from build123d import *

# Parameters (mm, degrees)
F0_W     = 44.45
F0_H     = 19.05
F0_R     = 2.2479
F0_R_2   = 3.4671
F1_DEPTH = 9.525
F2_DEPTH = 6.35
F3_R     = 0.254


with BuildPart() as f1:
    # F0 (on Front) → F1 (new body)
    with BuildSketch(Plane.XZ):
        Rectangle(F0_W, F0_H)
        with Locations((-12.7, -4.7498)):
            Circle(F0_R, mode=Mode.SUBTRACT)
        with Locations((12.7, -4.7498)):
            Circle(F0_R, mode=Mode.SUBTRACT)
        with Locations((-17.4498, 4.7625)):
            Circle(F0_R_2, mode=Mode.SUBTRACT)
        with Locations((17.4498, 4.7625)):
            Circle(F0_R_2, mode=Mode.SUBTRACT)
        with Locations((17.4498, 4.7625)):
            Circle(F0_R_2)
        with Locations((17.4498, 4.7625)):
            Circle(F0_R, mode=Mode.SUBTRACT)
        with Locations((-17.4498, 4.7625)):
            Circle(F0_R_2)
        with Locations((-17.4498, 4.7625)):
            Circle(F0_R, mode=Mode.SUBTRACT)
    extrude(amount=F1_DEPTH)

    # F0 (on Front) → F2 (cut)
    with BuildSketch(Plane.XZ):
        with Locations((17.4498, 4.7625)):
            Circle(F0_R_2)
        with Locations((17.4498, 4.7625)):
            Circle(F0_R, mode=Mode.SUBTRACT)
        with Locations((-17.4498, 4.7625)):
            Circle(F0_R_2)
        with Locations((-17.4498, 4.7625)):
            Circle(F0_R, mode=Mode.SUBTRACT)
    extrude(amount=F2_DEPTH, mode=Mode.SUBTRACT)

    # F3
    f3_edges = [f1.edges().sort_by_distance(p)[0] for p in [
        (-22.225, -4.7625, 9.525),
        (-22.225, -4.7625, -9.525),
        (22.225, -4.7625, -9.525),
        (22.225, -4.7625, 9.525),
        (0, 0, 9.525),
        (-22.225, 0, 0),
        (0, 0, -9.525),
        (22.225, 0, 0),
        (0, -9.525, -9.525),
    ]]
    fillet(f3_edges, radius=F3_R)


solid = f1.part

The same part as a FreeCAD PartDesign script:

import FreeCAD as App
import Part
import Sketcher

V = App.Vector
Q = App.Units.Quantity


def edges_at(feature, points):
    """Names of the edges that pass closest to the given points."""
    edges = feature.Shape.Edges
    near = lambda p: min(range(len(edges)), key=lambda i: edges[i].distToShape(Part.Vertex(*p))[0])
    return sorted({f"Edge{near(p) + 1}" for p in points})

doc = App.newDocument("Part")
params = doc.addObject("Spreadsheet::Sheet", "Params")
for row, (alias, value) in enumerate([
    ("sketch1_diameter", "0.177 in"),
    ("sketch1_width", "1.75 in"),
    ("sketch1_height", "0.75 in"),
    ("pad1_length", "0.375 in"),
    ("sketch2_diameter", "0.273 in"),
    ("sketch2_diameter2", "0.177 in"),
    ("pocket1_length", "0.25 in"),
    ("fillet_radius", "0.01 in"),
], start=1):
    params.set(f"A{row}", alias)
    params.set(f"B{row}", "=" + value)
    params.setAlias(f"B{row}", alias)

body = doc.addObject("PartDesign::Body", "Body")

# Sketch on XZ plane
sketch1 = doc.addObject("Sketcher::SketchObject", "Sketch")
body.addObject(sketch1)
sketch1.AttachmentSupport = (doc.XZ_Plane, [""])
sketch1.MapMode = "FlatFace"
sketch1.addGeometry([
    Part.LineSegment(V(-22.2, 9.5, 0), V(-22.2, -9.5, 0)),  # 0
    Part.LineSegment(V(-22.2, -9.5, 0), V(22.2, -9.5, 0)),  # 1
    Part.LineSegment(V(22.2, -9.5, 0), V(22.2, 9.5, 0)),  # 2
    Part.LineSegment(V(22.2, 9.5, 0), V(-22.2, 9.5, 0)),  # 3
    Part.Circle(V(-12.7, -4.7, 0), V(0, 0, 1), 2.2),  # 4
    Part.Circle(V(12.7, -4.7, 0), V(0, 0, 1), 2.2),  # 5
    Part.Circle(V(-17.4, 4.8, 0), V(0, 0, 1), 2.2),  # 6
    Part.Circle(V(17.4, 4.8, 0), V(0, 0, 1), 2.2),  # 7
], False)
sketch1.addConstraint([
    Sketcher.Constraint("Coincident", 0, 2, 1, 1),
    Sketcher.Constraint("Coincident", 1, 2, 2, 1),
    Sketcher.Constraint("Coincident", 2, 2, 3, 1),
    Sketcher.Constraint("Coincident", 3, 2, 0, 1),
    Sketcher.Constraint("Vertical", 0),
    Sketcher.Constraint("Horizontal", 1),
    Sketcher.Constraint("Vertical", 2),
    Sketcher.Constraint("Horizontal", 3),
    Sketcher.Constraint("Equal", 4, 5),
    Sketcher.Constraint("Equal", 5, 6),
    Sketcher.Constraint("Equal", 6, 7),
    Sketcher.Constraint("Symmetric", 0, 2, 2, 2, -1, 1),
    Sketcher.Constraint("Symmetric", 4, 3, 5, 3, -2),
    Sketcher.Constraint("Symmetric", 6, 3, 7, 3, -2),
    Sketcher.Constraint("Diameter", 4, Q("0.177 in")),
    Sketcher.Constraint("DistanceX", 4, 3, 5, 3, Q("1 in")),
    Sketcher.Constraint("DistanceX", 1, 1, 1, 2, Q("1.75 in")),
    Sketcher.Constraint("DistanceY", 0, 2, 0, 1, Q("0.75 in")),
    Sketcher.Constraint("DistanceY", 4, 3, -1, 1, Q("0.187 in")),
    Sketcher.Constraint("DistanceX", 6, 3, -1, 1, Q("0.687 in")),
    Sketcher.Constraint("DistanceY", -1, 1, 6, 3, Q("0.1875 in")),
])
sketch1.setExpression("Constraints[14]", "Params.sketch1_diameter")
sketch1.setExpression("Constraints[16]", "Params.sketch1_width")
sketch1.setExpression("Constraints[17]", "Params.sketch1_height")
pad1 = doc.addObject("PartDesign::Pad", "Pad")
body.addObject(pad1)
pad1.Profile = sketch1
pad1.setExpression("Length", "Params.pad1_length")

# Sketch on XZ plane
sketch2 = doc.addObject("Sketcher::SketchObject", "Sketch001")
body.addObject(sketch2)
sketch2.AttachmentSupport = (doc.XZ_Plane, [""])
sketch2.MapMode = "FlatFace"
sketch2.addGeometry([
    Part.Circle(V(17.4, 4.8, 0), V(0, 0, 1), 3.5),
    Part.Circle(V(17.4, 4.8, 0), V(0, 0, 1), 2.2),
    Part.Circle(V(-17.4, 4.8, 0), V(0, 0, 1), 3.5),
    Part.Circle(V(-17.4, 4.8, 0), V(0, 0, 1), 2.2),
], False)
sketch2.addConstraint([
    Sketcher.Constraint("Coincident", 1, 3, 0, 3),
    Sketcher.Constraint("Coincident", 3, 3, 2, 3),
    Sketcher.Constraint("Equal", 0, 2),
    Sketcher.Constraint("Equal", 1, 3),
    Sketcher.Constraint("Symmetric", 0, 3, 2, 3, -2),
    Sketcher.Constraint("Diameter", 0, Q("0.273 in")),
    Sketcher.Constraint("Diameter", 1, Q("0.177 in")),
    Sketcher.Constraint("DistanceX", -1, 1, 0, 3, Q("0.687 in")),
    Sketcher.Constraint("DistanceY", -1, 1, 0, 3, Q("0.1875 in")),
])
sketch2.setExpression("Constraints[5]", "Params.sketch2_diameter")
sketch2.setExpression("Constraints[6]", "Params.sketch2_diameter2")
pocket1 = doc.addObject("PartDesign::Pocket", "Pocket")
body.addObject(pocket1)
pocket1.Profile = sketch2
pocket1.setExpression("Length", "Params.pocket1_length")
pocket1.Reversed = True
doc.recompute()

fillet = doc.addObject("PartDesign::Fillet", "Fillet")
body.addObject(fillet)
fillet.Base = (pocket1, edges_at(pocket1, [
    (-22.225, -4.763, 9.525),
    (-22.225, -4.763, -9.525),
    (22.225, -4.763, -9.525),
    (22.225, -4.763, 9.525),
    (0, 0, 9.525),
    (-22.225, 0, 0),
    (0, 0, -9.525),
    (22.225, 0, 0),
    (0, -9.525, -9.525),
]))
fillet.setExpression("Radius", "Params.fillet_radius")

doc.recompute()
